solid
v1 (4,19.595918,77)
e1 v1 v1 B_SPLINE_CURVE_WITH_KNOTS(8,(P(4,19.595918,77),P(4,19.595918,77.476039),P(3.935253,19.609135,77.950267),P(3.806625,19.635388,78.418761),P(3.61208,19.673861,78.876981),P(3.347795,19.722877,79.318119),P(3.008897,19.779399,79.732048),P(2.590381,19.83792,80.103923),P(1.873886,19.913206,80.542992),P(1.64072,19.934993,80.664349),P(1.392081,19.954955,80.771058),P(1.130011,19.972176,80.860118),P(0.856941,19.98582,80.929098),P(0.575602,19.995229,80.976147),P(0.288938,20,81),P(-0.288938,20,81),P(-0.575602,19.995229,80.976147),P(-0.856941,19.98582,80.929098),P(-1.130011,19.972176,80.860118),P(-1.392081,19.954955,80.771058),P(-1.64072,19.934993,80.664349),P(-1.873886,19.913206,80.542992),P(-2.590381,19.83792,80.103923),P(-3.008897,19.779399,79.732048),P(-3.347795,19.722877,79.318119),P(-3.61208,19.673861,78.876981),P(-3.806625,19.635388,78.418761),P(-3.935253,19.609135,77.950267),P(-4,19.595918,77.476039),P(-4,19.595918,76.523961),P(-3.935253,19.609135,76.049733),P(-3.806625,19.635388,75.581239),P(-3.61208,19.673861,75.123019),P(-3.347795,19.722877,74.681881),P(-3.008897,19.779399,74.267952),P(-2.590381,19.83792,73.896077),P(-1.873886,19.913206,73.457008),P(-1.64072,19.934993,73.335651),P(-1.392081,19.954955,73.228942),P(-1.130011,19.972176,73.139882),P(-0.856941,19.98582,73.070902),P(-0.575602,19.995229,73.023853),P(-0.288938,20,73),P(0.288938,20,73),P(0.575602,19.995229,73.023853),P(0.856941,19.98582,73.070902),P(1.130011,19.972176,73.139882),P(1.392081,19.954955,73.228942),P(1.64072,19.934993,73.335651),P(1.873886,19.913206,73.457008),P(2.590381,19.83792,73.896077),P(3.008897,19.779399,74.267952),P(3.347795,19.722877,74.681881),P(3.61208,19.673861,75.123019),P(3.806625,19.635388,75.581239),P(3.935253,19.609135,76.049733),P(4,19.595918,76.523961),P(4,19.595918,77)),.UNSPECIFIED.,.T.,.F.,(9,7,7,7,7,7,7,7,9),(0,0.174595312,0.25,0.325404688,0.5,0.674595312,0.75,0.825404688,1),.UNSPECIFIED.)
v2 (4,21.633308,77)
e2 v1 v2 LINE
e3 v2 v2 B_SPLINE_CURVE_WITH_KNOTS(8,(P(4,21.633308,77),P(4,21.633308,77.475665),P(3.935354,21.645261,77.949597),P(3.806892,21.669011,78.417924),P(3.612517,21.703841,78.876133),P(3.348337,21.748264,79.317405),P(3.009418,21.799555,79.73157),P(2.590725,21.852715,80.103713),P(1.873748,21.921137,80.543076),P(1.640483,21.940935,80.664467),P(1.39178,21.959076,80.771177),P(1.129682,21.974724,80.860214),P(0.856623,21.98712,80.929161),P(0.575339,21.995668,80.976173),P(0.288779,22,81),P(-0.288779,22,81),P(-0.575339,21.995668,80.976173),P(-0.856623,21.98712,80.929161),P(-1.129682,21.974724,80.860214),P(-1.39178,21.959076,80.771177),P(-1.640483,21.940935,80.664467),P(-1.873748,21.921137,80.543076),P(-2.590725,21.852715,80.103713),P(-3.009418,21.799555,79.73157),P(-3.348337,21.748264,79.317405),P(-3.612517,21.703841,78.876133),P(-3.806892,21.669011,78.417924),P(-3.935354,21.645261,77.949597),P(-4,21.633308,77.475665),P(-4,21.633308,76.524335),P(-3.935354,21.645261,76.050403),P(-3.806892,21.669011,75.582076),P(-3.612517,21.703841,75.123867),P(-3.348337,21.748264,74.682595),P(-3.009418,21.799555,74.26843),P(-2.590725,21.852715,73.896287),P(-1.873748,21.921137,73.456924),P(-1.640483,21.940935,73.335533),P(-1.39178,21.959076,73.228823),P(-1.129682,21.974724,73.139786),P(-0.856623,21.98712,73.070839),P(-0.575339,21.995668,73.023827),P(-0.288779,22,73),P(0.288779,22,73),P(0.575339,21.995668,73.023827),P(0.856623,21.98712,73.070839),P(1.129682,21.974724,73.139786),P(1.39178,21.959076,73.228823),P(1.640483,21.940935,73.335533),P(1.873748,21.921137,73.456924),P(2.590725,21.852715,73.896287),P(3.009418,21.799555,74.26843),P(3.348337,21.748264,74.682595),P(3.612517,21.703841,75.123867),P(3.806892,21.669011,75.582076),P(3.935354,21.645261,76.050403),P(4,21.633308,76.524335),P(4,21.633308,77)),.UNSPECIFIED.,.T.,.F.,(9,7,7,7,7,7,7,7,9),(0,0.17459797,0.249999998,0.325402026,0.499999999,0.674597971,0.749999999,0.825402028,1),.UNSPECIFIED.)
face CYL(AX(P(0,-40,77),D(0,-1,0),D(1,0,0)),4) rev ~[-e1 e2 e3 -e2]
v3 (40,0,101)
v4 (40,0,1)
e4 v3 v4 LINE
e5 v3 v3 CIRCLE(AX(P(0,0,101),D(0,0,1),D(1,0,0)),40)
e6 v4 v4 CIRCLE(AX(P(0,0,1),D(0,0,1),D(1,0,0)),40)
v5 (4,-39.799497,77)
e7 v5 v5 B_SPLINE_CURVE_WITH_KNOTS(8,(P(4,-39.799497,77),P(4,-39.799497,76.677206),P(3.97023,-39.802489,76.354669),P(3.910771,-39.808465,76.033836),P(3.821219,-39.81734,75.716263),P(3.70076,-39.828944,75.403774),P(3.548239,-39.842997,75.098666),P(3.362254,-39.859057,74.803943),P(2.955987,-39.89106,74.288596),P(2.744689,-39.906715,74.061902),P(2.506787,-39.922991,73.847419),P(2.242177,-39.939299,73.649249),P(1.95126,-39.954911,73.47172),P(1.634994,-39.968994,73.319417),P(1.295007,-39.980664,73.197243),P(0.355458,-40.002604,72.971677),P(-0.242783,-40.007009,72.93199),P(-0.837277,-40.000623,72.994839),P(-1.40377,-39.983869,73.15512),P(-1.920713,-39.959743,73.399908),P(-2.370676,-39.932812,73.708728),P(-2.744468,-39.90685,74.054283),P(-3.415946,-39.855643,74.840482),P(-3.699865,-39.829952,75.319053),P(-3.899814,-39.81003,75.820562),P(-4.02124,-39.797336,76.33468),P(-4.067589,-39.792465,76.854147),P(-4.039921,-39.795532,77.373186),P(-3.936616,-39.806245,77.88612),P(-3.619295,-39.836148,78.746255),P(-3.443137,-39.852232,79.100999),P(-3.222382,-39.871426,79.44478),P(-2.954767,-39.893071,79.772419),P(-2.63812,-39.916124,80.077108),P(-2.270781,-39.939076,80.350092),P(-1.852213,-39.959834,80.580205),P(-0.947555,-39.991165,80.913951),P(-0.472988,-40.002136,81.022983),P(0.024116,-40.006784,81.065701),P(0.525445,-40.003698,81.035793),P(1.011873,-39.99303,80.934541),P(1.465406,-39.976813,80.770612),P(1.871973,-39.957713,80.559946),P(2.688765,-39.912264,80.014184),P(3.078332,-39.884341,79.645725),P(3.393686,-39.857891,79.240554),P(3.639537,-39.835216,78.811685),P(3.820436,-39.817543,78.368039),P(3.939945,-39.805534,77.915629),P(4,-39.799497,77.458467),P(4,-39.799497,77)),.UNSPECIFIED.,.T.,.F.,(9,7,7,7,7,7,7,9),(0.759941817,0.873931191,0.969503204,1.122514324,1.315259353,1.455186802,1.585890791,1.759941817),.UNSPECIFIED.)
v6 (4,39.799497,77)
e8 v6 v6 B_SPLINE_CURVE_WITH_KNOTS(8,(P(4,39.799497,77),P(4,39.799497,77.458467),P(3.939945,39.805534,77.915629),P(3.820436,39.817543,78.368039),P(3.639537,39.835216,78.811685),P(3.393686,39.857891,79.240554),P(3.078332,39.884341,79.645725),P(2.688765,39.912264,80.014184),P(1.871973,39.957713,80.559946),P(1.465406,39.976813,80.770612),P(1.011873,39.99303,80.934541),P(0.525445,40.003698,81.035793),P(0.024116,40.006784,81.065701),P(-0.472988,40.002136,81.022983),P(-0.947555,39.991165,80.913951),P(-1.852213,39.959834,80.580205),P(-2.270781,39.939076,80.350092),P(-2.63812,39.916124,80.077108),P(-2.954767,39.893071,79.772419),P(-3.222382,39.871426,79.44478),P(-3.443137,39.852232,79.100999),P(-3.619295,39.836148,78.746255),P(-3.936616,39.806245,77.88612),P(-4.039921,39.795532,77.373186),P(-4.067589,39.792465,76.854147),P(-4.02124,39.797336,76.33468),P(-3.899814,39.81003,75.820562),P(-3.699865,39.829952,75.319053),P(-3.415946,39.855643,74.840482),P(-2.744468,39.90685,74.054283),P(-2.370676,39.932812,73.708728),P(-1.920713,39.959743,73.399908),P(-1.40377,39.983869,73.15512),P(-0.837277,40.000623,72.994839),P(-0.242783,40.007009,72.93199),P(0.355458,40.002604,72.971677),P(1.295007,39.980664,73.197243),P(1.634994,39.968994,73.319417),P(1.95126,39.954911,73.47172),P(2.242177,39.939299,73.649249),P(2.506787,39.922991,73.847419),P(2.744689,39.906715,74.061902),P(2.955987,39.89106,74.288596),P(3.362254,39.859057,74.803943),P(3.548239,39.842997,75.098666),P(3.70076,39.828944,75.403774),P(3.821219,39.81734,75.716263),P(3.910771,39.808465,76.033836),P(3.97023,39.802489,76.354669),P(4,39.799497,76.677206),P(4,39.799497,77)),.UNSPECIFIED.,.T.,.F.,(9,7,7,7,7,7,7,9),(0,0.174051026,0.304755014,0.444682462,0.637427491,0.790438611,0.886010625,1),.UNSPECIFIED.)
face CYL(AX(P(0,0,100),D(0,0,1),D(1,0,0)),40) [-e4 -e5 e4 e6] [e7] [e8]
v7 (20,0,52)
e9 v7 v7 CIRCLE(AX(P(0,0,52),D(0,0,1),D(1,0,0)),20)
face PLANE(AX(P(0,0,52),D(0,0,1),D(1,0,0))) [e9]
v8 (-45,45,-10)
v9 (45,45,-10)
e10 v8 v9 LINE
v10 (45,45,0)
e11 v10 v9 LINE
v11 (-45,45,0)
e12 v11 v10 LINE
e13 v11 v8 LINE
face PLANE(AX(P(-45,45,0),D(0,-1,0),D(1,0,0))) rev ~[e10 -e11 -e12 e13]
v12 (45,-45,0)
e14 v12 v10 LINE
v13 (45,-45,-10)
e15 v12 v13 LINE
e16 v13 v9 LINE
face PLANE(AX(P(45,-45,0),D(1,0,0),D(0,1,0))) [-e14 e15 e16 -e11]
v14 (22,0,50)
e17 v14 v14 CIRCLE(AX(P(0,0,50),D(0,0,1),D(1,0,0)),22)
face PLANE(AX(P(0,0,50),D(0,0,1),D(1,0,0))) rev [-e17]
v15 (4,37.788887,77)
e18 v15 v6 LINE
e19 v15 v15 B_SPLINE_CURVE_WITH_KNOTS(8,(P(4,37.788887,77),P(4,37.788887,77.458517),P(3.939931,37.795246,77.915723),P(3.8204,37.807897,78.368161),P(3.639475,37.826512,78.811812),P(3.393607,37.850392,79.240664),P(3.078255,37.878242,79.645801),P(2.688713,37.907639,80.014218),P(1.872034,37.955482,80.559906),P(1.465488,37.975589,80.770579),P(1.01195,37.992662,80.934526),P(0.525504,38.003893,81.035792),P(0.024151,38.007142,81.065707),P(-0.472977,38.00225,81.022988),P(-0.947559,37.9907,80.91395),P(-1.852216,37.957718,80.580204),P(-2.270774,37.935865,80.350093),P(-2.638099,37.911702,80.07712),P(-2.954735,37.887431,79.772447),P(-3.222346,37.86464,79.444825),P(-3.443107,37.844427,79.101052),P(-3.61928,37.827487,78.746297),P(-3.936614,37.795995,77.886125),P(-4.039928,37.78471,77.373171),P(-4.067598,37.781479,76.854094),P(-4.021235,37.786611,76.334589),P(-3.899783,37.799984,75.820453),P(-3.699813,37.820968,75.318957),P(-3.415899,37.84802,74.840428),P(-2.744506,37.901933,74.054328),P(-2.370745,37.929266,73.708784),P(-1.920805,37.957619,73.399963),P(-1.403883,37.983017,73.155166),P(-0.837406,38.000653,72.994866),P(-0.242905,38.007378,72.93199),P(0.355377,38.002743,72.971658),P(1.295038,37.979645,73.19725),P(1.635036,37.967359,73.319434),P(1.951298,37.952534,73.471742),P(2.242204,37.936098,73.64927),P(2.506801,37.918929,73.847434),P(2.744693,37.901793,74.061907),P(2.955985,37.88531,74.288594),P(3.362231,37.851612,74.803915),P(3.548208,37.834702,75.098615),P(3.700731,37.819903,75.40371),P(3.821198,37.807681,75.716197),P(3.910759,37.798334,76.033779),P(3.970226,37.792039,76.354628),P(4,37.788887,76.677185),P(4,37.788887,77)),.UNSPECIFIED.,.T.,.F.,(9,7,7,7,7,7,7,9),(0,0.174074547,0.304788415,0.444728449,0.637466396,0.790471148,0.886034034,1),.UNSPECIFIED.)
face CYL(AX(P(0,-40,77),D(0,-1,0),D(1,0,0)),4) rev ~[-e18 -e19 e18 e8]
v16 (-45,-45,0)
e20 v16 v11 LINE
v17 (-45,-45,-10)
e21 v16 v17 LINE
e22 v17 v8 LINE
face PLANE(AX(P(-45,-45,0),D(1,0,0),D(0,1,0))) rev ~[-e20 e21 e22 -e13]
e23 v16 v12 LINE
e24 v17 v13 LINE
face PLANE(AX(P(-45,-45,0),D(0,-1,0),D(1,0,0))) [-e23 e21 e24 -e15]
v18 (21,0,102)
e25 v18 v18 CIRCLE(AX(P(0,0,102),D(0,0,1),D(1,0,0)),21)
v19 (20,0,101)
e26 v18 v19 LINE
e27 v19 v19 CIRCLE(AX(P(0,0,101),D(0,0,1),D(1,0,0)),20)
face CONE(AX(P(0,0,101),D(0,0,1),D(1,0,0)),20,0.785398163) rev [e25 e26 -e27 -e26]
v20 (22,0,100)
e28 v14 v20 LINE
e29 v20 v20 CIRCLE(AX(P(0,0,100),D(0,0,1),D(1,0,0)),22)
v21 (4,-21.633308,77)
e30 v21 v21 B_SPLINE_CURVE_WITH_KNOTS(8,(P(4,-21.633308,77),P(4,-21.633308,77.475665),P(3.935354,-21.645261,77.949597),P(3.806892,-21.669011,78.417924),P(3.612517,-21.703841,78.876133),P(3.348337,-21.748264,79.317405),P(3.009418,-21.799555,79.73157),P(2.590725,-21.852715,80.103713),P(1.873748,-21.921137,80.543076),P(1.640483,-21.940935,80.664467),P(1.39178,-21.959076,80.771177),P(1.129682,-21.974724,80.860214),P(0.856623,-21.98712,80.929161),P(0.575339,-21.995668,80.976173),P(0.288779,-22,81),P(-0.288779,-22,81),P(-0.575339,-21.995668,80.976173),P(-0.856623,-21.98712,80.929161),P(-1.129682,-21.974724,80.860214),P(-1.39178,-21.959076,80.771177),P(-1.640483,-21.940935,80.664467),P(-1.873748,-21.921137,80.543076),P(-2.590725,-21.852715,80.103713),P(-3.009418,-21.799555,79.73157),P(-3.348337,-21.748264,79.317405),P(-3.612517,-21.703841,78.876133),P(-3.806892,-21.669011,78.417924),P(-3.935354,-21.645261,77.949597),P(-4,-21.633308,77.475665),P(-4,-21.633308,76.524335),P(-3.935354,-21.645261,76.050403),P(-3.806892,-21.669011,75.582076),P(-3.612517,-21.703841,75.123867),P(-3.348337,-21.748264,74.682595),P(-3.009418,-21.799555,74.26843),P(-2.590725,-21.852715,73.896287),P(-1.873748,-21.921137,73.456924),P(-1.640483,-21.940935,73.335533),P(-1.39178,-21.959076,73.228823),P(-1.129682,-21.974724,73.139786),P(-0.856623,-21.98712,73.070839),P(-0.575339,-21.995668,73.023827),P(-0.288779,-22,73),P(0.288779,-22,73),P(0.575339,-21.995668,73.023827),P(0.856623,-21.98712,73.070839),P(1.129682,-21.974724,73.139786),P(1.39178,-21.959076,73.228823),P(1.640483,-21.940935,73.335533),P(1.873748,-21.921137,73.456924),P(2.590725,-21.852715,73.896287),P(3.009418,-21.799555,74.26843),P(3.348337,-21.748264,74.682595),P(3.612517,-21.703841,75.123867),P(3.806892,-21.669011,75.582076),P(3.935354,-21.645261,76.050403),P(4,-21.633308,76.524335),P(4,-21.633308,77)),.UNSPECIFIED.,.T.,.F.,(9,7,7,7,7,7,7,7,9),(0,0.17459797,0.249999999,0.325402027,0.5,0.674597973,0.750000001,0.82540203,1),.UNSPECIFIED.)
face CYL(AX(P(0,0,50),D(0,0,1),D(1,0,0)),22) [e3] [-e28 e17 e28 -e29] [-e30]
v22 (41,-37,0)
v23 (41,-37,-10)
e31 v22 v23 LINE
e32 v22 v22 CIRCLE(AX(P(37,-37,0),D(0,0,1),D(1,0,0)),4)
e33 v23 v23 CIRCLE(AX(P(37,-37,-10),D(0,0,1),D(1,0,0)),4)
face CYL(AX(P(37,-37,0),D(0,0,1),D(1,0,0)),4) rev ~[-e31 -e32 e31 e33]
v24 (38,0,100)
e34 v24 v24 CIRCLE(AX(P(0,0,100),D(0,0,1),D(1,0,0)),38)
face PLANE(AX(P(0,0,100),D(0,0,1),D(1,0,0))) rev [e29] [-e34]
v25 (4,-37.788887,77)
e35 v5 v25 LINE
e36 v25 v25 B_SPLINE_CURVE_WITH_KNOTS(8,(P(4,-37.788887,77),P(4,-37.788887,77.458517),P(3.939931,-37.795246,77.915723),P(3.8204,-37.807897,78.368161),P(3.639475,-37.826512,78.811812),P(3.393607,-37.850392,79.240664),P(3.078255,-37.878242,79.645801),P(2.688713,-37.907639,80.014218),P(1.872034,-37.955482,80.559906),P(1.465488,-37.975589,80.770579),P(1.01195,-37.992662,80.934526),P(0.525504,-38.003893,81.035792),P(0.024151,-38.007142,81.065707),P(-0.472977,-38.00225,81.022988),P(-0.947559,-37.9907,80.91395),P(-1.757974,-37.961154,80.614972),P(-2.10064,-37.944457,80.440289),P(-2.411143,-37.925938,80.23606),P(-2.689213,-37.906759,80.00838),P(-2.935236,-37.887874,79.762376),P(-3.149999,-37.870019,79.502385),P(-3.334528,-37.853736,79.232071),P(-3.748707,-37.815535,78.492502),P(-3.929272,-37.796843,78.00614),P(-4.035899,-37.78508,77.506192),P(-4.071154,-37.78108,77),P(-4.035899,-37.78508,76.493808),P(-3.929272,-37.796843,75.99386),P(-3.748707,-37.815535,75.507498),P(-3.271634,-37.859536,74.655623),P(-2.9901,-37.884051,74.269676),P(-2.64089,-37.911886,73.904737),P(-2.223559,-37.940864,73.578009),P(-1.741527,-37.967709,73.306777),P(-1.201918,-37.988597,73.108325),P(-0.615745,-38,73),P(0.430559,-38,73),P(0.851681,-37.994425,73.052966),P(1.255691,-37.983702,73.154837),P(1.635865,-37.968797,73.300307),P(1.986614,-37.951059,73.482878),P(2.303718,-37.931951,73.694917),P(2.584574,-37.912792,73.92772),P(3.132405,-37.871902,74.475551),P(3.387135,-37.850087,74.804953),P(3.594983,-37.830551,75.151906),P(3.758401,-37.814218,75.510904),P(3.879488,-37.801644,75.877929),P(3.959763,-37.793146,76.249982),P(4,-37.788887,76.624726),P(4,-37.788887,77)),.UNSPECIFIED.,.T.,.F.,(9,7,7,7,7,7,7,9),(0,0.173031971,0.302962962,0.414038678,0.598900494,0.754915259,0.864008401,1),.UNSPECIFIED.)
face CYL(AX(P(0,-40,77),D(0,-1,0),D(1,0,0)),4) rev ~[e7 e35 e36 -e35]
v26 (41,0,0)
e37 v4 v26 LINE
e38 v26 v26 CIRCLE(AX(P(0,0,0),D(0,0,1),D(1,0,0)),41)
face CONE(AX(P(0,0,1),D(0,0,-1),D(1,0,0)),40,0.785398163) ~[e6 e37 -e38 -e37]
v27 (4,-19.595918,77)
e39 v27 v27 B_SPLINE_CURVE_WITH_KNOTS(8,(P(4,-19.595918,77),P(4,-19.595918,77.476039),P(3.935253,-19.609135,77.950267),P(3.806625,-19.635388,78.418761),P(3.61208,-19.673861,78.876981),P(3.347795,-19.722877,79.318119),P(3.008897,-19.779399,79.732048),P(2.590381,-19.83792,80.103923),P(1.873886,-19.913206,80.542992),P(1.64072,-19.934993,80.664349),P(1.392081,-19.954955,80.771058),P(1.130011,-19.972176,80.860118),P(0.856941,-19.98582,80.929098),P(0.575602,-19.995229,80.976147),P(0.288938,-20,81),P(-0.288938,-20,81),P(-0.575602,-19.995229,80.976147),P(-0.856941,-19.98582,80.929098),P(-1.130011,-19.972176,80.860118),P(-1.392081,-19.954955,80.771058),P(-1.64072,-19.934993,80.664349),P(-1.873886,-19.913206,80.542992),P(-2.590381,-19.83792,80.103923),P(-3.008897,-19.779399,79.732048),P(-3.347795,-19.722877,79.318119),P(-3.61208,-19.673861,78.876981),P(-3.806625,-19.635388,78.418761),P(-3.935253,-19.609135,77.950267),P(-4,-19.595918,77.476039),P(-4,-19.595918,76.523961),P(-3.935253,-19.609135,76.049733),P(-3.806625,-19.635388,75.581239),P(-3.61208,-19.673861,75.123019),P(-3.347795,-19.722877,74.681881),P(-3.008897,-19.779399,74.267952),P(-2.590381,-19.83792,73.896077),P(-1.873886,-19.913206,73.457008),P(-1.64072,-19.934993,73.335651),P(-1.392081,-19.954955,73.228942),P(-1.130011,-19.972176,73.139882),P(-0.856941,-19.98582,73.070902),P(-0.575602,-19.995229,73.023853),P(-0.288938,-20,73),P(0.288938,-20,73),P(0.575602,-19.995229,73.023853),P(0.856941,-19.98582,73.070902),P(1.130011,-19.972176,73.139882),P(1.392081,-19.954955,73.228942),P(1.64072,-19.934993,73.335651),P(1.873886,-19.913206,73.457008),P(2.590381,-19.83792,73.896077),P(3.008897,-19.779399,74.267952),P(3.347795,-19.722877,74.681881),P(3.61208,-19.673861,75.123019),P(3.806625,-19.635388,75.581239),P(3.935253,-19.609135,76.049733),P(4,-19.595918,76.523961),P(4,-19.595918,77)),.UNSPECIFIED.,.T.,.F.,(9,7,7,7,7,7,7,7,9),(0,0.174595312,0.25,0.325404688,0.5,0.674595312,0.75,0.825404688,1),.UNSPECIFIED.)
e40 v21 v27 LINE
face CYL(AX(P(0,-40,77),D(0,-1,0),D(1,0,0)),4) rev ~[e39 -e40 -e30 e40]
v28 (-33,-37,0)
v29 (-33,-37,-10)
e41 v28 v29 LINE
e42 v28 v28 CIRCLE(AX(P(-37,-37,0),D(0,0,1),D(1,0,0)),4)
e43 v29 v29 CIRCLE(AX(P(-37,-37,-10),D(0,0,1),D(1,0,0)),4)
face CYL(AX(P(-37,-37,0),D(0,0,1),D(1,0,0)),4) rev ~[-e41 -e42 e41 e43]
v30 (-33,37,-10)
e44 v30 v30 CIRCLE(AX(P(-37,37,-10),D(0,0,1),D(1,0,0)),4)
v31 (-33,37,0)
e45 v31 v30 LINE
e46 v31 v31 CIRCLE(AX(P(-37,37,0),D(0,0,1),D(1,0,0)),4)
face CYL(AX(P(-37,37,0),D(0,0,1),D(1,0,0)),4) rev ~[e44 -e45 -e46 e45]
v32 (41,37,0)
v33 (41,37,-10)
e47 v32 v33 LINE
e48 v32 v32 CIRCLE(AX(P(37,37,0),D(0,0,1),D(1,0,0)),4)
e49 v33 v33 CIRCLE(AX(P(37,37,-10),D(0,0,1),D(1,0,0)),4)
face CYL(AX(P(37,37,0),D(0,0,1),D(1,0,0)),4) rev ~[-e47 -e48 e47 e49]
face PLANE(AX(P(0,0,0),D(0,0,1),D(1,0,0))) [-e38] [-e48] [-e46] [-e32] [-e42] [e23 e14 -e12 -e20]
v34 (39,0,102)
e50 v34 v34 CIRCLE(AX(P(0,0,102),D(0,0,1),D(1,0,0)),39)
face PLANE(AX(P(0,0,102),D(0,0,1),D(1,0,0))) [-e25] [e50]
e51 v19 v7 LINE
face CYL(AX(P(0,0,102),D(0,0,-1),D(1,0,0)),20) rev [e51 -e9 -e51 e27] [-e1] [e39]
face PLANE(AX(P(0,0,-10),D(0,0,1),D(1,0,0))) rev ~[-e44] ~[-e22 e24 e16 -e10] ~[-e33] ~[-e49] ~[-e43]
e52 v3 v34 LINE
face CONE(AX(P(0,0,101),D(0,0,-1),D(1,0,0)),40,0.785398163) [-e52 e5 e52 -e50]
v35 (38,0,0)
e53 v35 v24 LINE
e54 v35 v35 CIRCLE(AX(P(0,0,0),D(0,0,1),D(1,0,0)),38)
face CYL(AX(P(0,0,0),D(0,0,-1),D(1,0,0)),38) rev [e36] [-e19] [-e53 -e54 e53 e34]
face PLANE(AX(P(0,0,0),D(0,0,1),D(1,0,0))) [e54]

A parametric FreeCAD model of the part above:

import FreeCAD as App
import Part
import Sketcher
from FreeCAD import Vector
Q = App.Units.Quantity


def edges_at(feature, points):
    """Names of the edges that pass closest to the given points."""
    edges = feature.Shape.Edges
    near = lambda p: min(range(len(edges)), key=lambda i: edges[i].distToShape(Part.Vertex(*p))[0])
    return sorted({f"Edge{near(p) + 1}" for p in points})


def add_polygon(sketch, points):
    """Adds a closed chain of lines whose ends are joined by coincident constraints."""
    first, n = sketch.GeometryCount, len(points)
    for a, b in zip(points, points[1:] + points[:1]):
        sketch.addGeometry(Part.LineSegment(App.Vector(*a, 0), App.Vector(*b, 0)), False)
    for i in range(n):
        sketch.addConstraint(Sketcher.Constraint("Coincident", first + i, 2, first + (i + 1) % n, 1))

doc = App.newDocument("Part")
body = doc.addObject("PartDesign::Body", "Body")

sketch1 = body.newObject("Sketcher::SketchObject", "Sketch")
sketch1.AttachmentSupport = (doc.getObject("XY_Plane"), [""])
sketch1.MapMode = "FlatFace"
add_polygon(sketch1, [(-45, 45), (-45, -45), (45, -45), (45, 45)])
sketch1.addGeometry(Part.Circle(Vector(-37, -37, 0), Vector(0, 0, 1), 4), False)
sketch1.addGeometry(Part.Circle(Vector(37, -37, 0), Vector(0, 0, 1), 4), False)
sketch1.addGeometry(Part.Circle(Vector(-37, 37, 0), Vector(0, 0, 1), 4), False)
sketch1.addGeometry(Part.Circle(Vector(37, 37, 0), Vector(0, 0, 1), 4), False)
sketch1.addConstraint([
    Sketcher.Constraint("Vertical", 0),
    Sketcher.Constraint("Horizontal", 1),
    Sketcher.Constraint("Vertical", 2),
    Sketcher.Constraint("Horizontal", 3),
    Sketcher.Constraint("Equal", 4, 5),
    Sketcher.Constraint("Equal", 5, 6),
    Sketcher.Constraint("Equal", 6, 7),
    Sketcher.Constraint("Symmetric", 5, 3, 6, 3, -1, 1),
    Sketcher.Constraint("Symmetric", 4, 3, 7, 3, -1, 1),
    Sketcher.Constraint("Symmetric", 0, 2, 2, 2, -1, 1),
    Sketcher.Constraint("Symmetric", 4, 3, 5, 3, -2),
    Sketcher.Constraint("Equal", 3, 0),
    Sketcher.Constraint("Diameter", 4, Q("8 mm")),
    Sketcher.Constraint("DistanceX", 1, 1, 1, 2, Q("90 mm")),
    Sketcher.Constraint("DistanceX", 4, 3, -1, 1, Q("37 mm")),
    Sketcher.Constraint("DistanceY", 4, 3, -1, 1, Q("37 mm")),
])
pad1 = body.newObject("PartDesign::Pad", "Pad")
pad1.Profile = sketch1
pad1.Length = 10
pad1.Reversed = True

sketch2 = body.newObject("Sketcher::SketchObject", "Sketch001")
sketch2.AttachmentSupport = (doc.getObject("XY_Plane"), [""])
sketch2.MapMode = "FlatFace"
sketch2.addGeometry([
    Part.Circle(Vector(0, 0, 0), Vector(0, 0, 1), 40),
    Part.Circle(Vector(0, 0, 0), Vector(0, 0, 1), 38),
], False)
sketch2.addConstraint([
    Sketcher.Constraint("Coincident", 0, 3, -1, 1),
    Sketcher.Constraint("Coincident", 1, 3, -1, 1),
    Sketcher.Constraint("Diameter", 0, Q("80 mm")),
    Sketcher.Constraint("Diameter", 1, Q("76 mm")),
])
pad2 = body.newObject("PartDesign::Pad", "Pad001")
pad2.Profile = sketch2
pad2.Length = 100

sketch3 = body.newObject("Sketcher::SketchObject", "Sketch002")
sketch3.AttachmentSupport = (doc.getObject("XZ_Plane"), [""])
sketch3.MapMode = "FlatFace"
add_polygon(sketch3, [(0, 52), (0, 50), (22, 50), (22, 100), (40, 100), (40, 102), (20, 102), (20, 52)])
sketch3.addConstraint([
    Sketcher.Constraint("Vertical", 0),
    Sketcher.Constraint("Horizontal", 1),
    Sketcher.Constraint("Vertical", 2),
    Sketcher.Constraint("Horizontal", 3),
    Sketcher.Constraint("Vertical", 4),
    Sketcher.Constraint("Horizontal", 5),
    Sketcher.Constraint("Vertical", 6),
    Sketcher.Constraint("Horizontal", 7),
    Sketcher.Constraint("PointOnObject", 0, 2, -2),
    Sketcher.Constraint("Equal", 5, 7),
    Sketcher.Constraint("Equal", 0, 4),
    Sketcher.Constraint("DistanceX", 1, 1, 1, 2, Q("22 mm")),
    Sketcher.Constraint("DistanceX", 3, 1, 3, 2, Q("18 mm")),
    Sketcher.Constraint("DistanceY", 0, 2, 0, 1, Q("2 mm")),
    Sketcher.Constraint("DistanceY", 2, 1, 2, 2, Q("50 mm")),
    Sketcher.Constraint("DistanceY", -1, 1, 0, 2, Q("50 mm")),
])
revolution = body.newObject("PartDesign::Revolution", "Revolution")
revolution.Profile = sketch3
revolution.ReferenceAxis = (sketch3, ["V_Axis"])
revolution.Angle = 360
doc.recompute()

chamfer = body.newObject("PartDesign::Chamfer", "Chamfer")
chamfer.Base = (revolution, edges_at(revolution, [(-40, 0, 0), (40, 0, 50), (-40, 0, 102)]))
chamfer.Size = 1
doc.recompute()

chamfer2 = body.newObject("PartDesign::Chamfer", "Chamfer001")
chamfer2.Base = (chamfer, edges_at(chamfer, [(-20, 0, 102)]))
chamfer2.Size = 1

sketch4 = body.newObject("Sketcher::SketchObject", "Sketch003")
sketch4.AttachmentSupport = (doc.getObject("XZ_Plane"), [""])
sketch4.MapMode = "FlatFace"
sketch4.AttachmentOffset = App.Placement(Vector(0, 0, 40), App.Rotation())
sketch4.addGeometry(Part.Circle(Vector(0, 77, 0), Vector(0, 0, 1), 4), False)
sketch4.addConstraint([
    Sketcher.Constraint("PointOnObject", 0, 3, -2),
    Sketcher.Constraint("Diameter", 0, Q("8 mm")),
    Sketcher.Constraint("DistanceY", -1, 1, 0, 3, Q("77 mm")),
])
pocket1 = body.newObject("PartDesign::Pocket", "Pocket")
pocket1.Profile = sketch4
pocket1.Length = 80

doc.recompute()
